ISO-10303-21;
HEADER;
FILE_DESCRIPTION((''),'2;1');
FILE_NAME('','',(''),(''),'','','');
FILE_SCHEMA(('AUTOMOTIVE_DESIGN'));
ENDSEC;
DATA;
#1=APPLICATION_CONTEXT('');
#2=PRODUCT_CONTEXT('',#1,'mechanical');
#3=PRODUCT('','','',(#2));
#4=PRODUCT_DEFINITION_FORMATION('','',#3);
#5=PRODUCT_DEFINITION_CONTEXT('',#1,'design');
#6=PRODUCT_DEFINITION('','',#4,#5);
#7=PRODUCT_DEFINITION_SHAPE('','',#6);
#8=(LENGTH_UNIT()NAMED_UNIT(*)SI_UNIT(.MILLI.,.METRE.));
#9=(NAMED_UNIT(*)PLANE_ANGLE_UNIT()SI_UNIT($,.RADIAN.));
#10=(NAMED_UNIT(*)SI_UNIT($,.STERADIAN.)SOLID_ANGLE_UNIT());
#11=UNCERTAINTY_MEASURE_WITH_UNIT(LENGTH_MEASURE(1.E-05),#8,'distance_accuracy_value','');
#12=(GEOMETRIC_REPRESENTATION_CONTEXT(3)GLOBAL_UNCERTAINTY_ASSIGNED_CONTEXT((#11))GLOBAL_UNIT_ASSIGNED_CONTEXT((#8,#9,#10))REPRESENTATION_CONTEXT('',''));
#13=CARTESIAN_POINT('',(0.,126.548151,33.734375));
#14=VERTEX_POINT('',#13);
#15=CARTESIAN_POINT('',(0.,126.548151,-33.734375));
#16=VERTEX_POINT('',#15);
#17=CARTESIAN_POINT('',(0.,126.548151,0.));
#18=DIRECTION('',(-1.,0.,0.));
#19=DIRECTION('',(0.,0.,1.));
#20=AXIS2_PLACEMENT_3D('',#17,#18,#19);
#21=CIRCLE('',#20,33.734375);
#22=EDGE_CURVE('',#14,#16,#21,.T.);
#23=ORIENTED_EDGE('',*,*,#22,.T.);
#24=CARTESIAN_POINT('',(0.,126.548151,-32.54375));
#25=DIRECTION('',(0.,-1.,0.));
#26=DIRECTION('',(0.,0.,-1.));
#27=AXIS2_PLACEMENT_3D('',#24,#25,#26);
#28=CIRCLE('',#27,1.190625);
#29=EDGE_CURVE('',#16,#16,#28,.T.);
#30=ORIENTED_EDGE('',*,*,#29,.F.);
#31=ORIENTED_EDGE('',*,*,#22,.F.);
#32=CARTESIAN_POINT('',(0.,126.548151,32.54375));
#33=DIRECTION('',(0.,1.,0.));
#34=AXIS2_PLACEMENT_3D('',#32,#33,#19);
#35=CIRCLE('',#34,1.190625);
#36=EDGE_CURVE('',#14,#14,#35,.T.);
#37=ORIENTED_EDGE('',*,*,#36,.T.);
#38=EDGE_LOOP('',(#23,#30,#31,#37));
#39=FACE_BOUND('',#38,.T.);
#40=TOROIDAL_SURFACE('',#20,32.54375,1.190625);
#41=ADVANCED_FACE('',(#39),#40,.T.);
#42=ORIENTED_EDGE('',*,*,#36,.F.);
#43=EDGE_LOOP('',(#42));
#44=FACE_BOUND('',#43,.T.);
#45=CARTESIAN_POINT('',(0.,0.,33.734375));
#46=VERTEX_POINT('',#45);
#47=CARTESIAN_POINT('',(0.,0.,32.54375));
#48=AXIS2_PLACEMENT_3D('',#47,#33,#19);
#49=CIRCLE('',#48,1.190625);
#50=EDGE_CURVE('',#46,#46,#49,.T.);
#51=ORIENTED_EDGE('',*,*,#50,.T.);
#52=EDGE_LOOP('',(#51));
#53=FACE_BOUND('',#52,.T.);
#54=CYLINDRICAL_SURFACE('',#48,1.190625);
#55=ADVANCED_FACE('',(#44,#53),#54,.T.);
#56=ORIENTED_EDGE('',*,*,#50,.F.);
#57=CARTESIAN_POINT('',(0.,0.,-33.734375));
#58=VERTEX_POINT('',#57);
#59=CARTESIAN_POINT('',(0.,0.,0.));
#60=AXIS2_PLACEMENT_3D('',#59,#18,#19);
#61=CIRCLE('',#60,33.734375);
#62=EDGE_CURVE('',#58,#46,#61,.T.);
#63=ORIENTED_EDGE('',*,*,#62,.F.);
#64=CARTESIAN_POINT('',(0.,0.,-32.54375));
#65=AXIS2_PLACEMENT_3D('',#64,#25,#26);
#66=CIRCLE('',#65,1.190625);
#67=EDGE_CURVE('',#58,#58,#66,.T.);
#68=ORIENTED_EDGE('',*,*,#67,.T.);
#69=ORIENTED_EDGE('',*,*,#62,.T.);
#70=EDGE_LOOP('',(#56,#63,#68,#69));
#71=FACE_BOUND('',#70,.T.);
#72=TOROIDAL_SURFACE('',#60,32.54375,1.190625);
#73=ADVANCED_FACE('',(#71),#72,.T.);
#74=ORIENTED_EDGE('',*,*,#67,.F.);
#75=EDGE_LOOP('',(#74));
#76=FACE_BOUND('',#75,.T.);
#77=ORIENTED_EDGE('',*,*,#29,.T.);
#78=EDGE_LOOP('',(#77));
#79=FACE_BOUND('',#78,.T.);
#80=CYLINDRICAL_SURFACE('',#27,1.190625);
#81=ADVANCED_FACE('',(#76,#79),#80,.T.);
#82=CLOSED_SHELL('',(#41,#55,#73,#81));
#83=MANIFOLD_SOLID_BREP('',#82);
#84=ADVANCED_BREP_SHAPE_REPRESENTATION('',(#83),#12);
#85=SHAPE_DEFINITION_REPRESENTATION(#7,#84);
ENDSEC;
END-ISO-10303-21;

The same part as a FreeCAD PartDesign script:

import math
import FreeCAD as App
import Part
import Sketcher

V = App.Vector
Q = App.Units.Quantity

doc = App.newDocument("Part")
body = doc.addObject("PartDesign::Body", "Body")

sketch1 = body.newObject("Sketcher::SketchObject", "Sketch")
sketch1.AttachmentSupport = (doc.getObject("XZ_Plane"), [""])
sketch1.MapMode = "FlatFace"
sketch1.addGeometry(Part.Circle(V(0, 32.54375, 0), V(0, 0, 1), 1.190625), False)
sketch1.addConstraint(Sketcher.Constraint("PointOnObject", 0, 3, -2))
sketch1.addConstraint(Sketcher.Constraint("Diameter", 0, Q("0.09375 in")))
sketch1.addConstraint(Sketcher.Constraint("DistanceY", -1, 1, 0, 3, Q("1.28125 in")))

sketch2 = body.newObject("Sketcher::SketchObject", "Sketch001")
sketch2.AttachmentSupport = (doc.getObject("YZ_Plane"), [""])
sketch2.MapMode = "FlatFace"
sketch2.addGeometry(Part.LineSegment(V(126.548151, -32.54375, 0), V(0, -32.54375, 0)), False)
sketch2.addGeometry(Part.ArcOfCircle(Part.Circle(V(0, 0, 0), V(0, 0, 1), 32.54375), math.radians(90), math.radians(270)), False)
sketch2.addGeometry(Part.LineSegment(V(0, 32.54375, 0), V(126.548151, 32.54375, 0)), False)
sketch2.addGeometry(Part.ArcOfCircle(Part.Circle(V(126.548151, 0, 0), V(0, 0, 1), 32.54375), math.radians(-90), math.radians(90)), False)
sketch2.addConstraint(Sketcher.Constraint("Tangent", 0, 2, 1, 2))
sketch2.addConstraint(Sketcher.Constraint("Tangent", 1, 1, 2, 1))
sketch2.addConstraint(Sketcher.Constraint("Tangent", 2, 2, 3, 2))
sketch2.addConstraint(Sketcher.Constraint("Tangent", 3, 1, 0, 1))
sketch2.addConstraint(Sketcher.Constraint("Horizontal", 0))
sketch2.addConstraint(Sketcher.Constraint("Horizontal", 2))
sketch2.addConstraint(Sketcher.Constraint("Coincident", 1, 3, -1, 1))
sketch2.addConstraint(Sketcher.Constraint("Radius", 1, Q("1.28125 in")))
sketch2.addConstraint(Sketcher.Constraint("DistanceX", 0, 2, 0, 1, Q("126.548151 mm")))
doc.recompute()

additivepipe = body.newObject("PartDesign::AdditivePipe", "AdditivePipe")
additivepipe.Profile = sketch1
additivepipe.Spine = (sketch2, ["Edge1", "Edge2", "Edge3", "Edge4"])

doc.recompute()
